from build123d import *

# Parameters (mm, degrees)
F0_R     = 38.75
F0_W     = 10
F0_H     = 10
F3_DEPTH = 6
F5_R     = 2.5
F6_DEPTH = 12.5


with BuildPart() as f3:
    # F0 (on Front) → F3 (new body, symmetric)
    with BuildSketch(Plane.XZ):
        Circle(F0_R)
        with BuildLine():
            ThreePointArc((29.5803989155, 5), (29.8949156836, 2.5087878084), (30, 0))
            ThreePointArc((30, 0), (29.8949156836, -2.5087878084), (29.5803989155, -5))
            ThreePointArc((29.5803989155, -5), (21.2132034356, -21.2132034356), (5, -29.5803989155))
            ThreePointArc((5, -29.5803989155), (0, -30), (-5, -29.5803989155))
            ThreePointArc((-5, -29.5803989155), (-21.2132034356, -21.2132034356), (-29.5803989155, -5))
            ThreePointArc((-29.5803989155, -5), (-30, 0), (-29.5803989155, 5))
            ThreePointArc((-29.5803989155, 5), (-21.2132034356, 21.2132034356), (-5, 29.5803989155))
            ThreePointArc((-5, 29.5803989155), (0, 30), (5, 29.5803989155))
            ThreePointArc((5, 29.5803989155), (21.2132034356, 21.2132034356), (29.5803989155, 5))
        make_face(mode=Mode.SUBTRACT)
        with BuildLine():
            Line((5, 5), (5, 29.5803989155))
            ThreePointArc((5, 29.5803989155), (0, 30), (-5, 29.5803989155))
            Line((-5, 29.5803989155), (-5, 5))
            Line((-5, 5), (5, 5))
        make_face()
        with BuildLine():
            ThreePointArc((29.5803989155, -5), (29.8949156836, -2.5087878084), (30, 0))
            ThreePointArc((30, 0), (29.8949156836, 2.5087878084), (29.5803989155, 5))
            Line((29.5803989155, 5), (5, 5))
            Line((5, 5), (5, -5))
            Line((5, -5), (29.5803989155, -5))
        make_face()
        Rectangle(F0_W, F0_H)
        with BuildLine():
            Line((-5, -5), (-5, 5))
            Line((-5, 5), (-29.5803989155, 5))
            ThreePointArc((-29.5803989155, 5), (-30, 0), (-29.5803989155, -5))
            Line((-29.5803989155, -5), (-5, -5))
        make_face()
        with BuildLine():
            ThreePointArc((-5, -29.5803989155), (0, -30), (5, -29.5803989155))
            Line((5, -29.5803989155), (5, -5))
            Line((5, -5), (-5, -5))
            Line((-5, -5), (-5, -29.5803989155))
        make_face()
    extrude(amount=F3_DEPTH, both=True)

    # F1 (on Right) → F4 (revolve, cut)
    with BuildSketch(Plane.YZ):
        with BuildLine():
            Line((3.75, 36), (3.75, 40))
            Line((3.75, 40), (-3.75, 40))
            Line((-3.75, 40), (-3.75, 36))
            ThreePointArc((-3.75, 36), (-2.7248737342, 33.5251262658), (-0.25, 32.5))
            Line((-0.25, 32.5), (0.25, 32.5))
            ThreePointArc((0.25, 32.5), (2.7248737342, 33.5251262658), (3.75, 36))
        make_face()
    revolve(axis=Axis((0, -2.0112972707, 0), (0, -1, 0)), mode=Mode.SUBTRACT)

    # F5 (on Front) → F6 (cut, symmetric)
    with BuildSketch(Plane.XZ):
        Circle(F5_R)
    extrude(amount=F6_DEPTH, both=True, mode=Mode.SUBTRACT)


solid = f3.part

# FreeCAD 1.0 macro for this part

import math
import FreeCAD as App
import Part
import Sketcher
from FreeCAD import Vector

doc = App.newDocument("Part")
body = doc.addObject("PartDesign::Body", "Body")

# Sketch on XZ plane
sketch1 = body.newObject("Sketcher::SketchObject", "Sketch")
sketch1.AttachmentSupport = (doc.getObject("XZ_Plane"), [""])
sketch1.MapMode = "FlatFace"
sketch1.addGeometry([
    Part.Circle(Vector(0, 0, 0), Vector(0, 0, 1), 39),  # 0
    Part.LineSegment(Vector(-5, 30, 0), Vector(-5, 5, 0)),  # 1
    Part.LineSegment(Vector(-5, 5, 0), Vector(-30, 5, 0)),  # 2
    Part.ArcOfCircle(Part.Circle(Vector(0, 0, 0), Vector(0, 0, 1), 30), math.radians(100), math.radians(170)),  # 3
    Part.ArcOfCircle(Part.Circle(Vector(0, 0, 0), Vector(0, 0, 1), 30), math.radians(-80), math.radians(-10)),  # 4
    Part.LineSegment(Vector(5, -30, 0), Vector(5, -5, 0)),  # 5
    Part.LineSegment(Vector(5, -5, 0), Vector(30, -5, 0)),  # 6
    Part.ArcOfCircle(Part.Circle(Vector(0, 0, 0), Vector(0, 0, 1), 30), math.radians(-170), math.radians(-100)),  # 7
    Part.LineSegment(Vector(-30, -5, 0), Vector(-5, -5, 0)),  # 8
    Part.LineSegment(Vector(-5, -5, 0), Vector(-5, -30, 0)),  # 9
    Part.LineSegment(Vector(30, 5, 0), Vector(5, 5, 0)),  # 10
    Part.LineSegment(Vector(5, 5, 0), Vector(5, 30, 0)),  # 11
    Part.ArcOfCircle(Part.Circle(Vector(0, 0, 0), Vector(0, 0, 1), 30), math.radians(10), math.radians(80)),  # 12
], False)
sketch1.addConstraint([
    Sketcher.Constraint("Coincident", 1, 2, 2, 1),
    Sketcher.Constraint("Coincident", 2, 2, 3, 2),
    Sketcher.Constraint("Coincident", 3, 1, 1, 1),
    Sketcher.Constraint("Coincident", 4, 1, 5, 1),
    Sketcher.Constraint("Coincident", 5, 2, 6, 1),
    Sketcher.Constraint("Coincident", 6, 2, 4, 2),
    Sketcher.Constraint("Coincident", 7, 1, 8, 1),
    Sketcher.Constraint("Coincident", 8, 2, 9, 1),
    Sketcher.Constraint("Coincident", 9, 2, 7, 2),
    Sketcher.Constraint("Coincident", 10, 2, 11, 1),
    Sketcher.Constraint("Coincident", 11, 2, 12, 2),
    Sketcher.Constraint("Coincident", 12, 1, 10, 1),
    Sketcher.Constraint("Vertical", 1),
    Sketcher.Constraint("Horizontal", 2),
    Sketcher.Constraint("Vertical", 5),
    Sketcher.Constraint("Horizontal", 6),
    Sketcher.Constraint("Horizontal", 8),
    Sketcher.Constraint("Vertical", 9),
    Sketcher.Constraint("Horizontal", 10),
    Sketcher.Constraint("Vertical", 11),
    Sketcher.Constraint("Coincident", 0, 3, -1, 1),
    Sketcher.Constraint("Coincident", 3, 3, -1, 1),
    Sketcher.Constraint("Coincident", 4, 3, -1, 1),
    Sketcher.Constraint("Coincident", 7, 3, -1, 1),
    Sketcher.Constraint("Coincident", 12, 3, -1, 1),
    Sketcher.Constraint("Equal", 3, 4),
    Sketcher.Constraint("Equal", 4, 7),
    Sketcher.Constraint("Equal", 7, 12),
    Sketcher.Constraint("Symmetric", 1, 2, 5, 2, -1, 1),
    Sketcher.Constraint("Symmetric", 8, 2, 10, 2, -1, 1),
    Sketcher.Constraint("Symmetric", 5, 2, 8, 2, -2),
    Sketcher.Constraint("Equal", 10, 1),
    Sketcher.Constraint("Radius", 3, 30.0),
    Sketcher.Constraint("Diameter", 0, 77.5),
    Sketcher.Constraint("DistanceX", 1, 2, -1, 1, 5.0),
])
pad1 = body.newObject("PartDesign::Pad", "Pad")
pad1.Profile = sketch1
pad1.Length = 12
pad1.Midplane = True

# Sketch on YZ plane
sketch2 = body.newObject("Sketcher::SketchObject", "Sketch001")
sketch2.AttachmentSupport = (doc.getObject("YZ_Plane"), [""])
sketch2.MapMode = "FlatFace"
sketch2.addGeometry([
    Part.LineSegment(Vector(3.8, 36, 0), Vector(3.8, 40, 0)),  # 0
    Part.LineSegment(Vector(3.8, 40, 0), Vector(-3.8, 40, 0)),  # 1
    Part.LineSegment(Vector(-3.8, 40, 0), Vector(-3.8, 36, 0)),  # 2
    Part.ArcOfCircle(Part.Circle(Vector(-0.2, 36, 0), Vector(0, 0, 1), 3.5), math.radians(180), math.radians(270)),  # 3
    Part.LineSegment(Vector(-0.2, 32.5, 0), Vector(0.2, 32.5, 0)),  # 4
    Part.ArcOfCircle(Part.Circle(Vector(0.2, 36, 0), Vector(0, 0, 1), 3.5), math.radians(-90), math.radians(0)),  # 5
], False)
sketch2.addConstraint([
    Sketcher.Constraint("Coincident", 0, 2, 1, 1),
    Sketcher.Constraint("Coincident", 1, 2, 2, 1),
    Sketcher.Constraint("Tangent", 2, 2, 3, 1),
    Sketcher.Constraint("Tangent", 3, 2, 4, 1),
    Sketcher.Constraint("Tangent", 4, 2, 5, 1),
    Sketcher.Constraint("Tangent", 5, 2, 0, 1),
    Sketcher.Constraint("Vertical", 0),
    Sketcher.Constraint("Horizontal", 1),
    Sketcher.Constraint("Vertical", 2),
    Sketcher.Constraint("Horizontal", 4),
    Sketcher.Constraint("Equal", 3, 5),
    Sketcher.Constraint("Radius", 3, 3.5),
    Sketcher.Constraint("DistanceY", 0, 1, 0, 2, 4.0),
    Sketcher.Constraint("DistanceX", 1, 2, 1, 1, 7.5),
    Sketcher.Constraint("DistanceY", -1, 1, 3, 3, 36.0),
    Sketcher.Constraint("DistanceX", 3, 3, -1, 1, 0.25),
])
groove = body.newObject("PartDesign::Groove", "Groove")
groove.Profile = sketch2
groove.ReferenceAxis = (sketch2, ["H_Axis"])
groove.Angle = 360

# Sketch on XZ plane
sketch3 = body.newObject("Sketcher::SketchObject", "Sketch002")
sketch3.AttachmentSupport = (doc.getObject("XZ_Plane"), [""])
sketch3.MapMode = "FlatFace"
sketch3.addGeometry(Part.Circle(Vector(0, 0, 0), Vector(0, 0, 1), 2.5), False)
sketch3.addConstraint([
    Sketcher.Constraint("Coincident", 0, 3, -1, 1),
    Sketcher.Constraint("Diameter", 0, 5.0),
])
pocket1 = body.newObject("PartDesign::Pocket", "Pocket")
pocket1.Profile = sketch3
pocket1.Length = 25
pocket1.Midplane = True

doc.recompute()
